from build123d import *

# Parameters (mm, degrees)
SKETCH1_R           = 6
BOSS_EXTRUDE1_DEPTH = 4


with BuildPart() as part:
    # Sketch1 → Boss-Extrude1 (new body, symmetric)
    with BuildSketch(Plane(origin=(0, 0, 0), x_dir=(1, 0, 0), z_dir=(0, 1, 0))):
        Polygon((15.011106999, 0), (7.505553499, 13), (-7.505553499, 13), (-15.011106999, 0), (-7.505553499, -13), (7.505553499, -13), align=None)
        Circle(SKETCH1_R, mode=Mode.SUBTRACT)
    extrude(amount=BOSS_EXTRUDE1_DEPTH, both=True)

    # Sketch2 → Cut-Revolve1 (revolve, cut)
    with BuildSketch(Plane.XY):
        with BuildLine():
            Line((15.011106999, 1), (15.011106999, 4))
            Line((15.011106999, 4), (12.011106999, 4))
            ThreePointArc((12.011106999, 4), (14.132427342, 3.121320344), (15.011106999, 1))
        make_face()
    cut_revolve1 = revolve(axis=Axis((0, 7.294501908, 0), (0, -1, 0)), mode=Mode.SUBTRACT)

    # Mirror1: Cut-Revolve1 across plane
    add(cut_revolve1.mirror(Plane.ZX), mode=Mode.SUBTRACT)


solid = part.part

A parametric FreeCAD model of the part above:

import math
import FreeCAD as App
import Part
import Sketcher
Q = App.Units.Quantity


def add_polygon(sketch, points):
    """Adds a closed chain of lines whose ends are joined by coincident constraints."""
    first, n = sketch.GeometryCount, len(points)
    for a, b in zip(points, points[1:] + points[:1]):
        sketch.addGeometry(Part.LineSegment(App.Vector(*a, 0), App.Vector(*b, 0)), False)
    for i in range(n):
        sketch.addConstraint(Sketcher.Constraint("Coincident", first + i, 2, first + (i + 1) % n, 1))

doc = App.newDocument("Part")
body = doc.addObject("PartDesign::Body", "Body")

# Sketch on XZ plane
sketch1 = body.newObject("Sketcher::SketchObject", "Sketch")
sketch1.AttachmentSupport = (doc.getObject("XZ_Plane"), [""])
sketch1.MapMode = "FlatFace"
add_polygon(sketch1, [(15, 0), (8, -13), (-8, -13), (-15, 0), (-8, 13), (8, 13)])  # lines 0-5
sketch1.addGeometry(Part.Circle(App.Vector(0, 0, 0), App.Vector(0, 0, 1), 6), False)  # 6
sketch1.addConstraint(Sketcher.Constraint("Horizontal", 1))
sketch1.addConstraint(Sketcher.Constraint("Horizontal", 4))
sketch1.addConstraint(Sketcher.Constraint("Coincident", 6, 3, -1, 1))
sketch1.addConstraint(Sketcher.Constraint("Symmetric", 0, 2, 3, 2, -1, 1))
sketch1.addConstraint(Sketcher.Constraint("Symmetric", 2, 2, 5, 2, -1, 1))
sketch1.addConstraint(Sketcher.Constraint("PointOnObject", 2, 2, -1))
sketch1.addConstraint(Sketcher.Constraint("Parallel", 2, 5))
sketch1.addConstraint(Sketcher.Constraint("Vertical", 1, 2, 3, 2))
sketch1.addConstraint(Sketcher.Constraint("Diameter", 6, 12.0))
sketch1.addConstraint(Sketcher.Constraint("Angle", 0, Q("-120 deg")))
sketch1.addConstraint(Sketcher.Constraint("DistanceY", 0, 2, -1, 1, 13.0))
sketch1.addConstraint(Sketcher.Constraint("DistanceX", 1, 2, 1, 1, 15.011107))
pad1 = body.newObject("PartDesign::Pad", "Pad")
pad1.Profile = sketch1
pad1.Length = 8
pad1.Midplane = True

# Sketch on XY plane
sketch2 = body.newObject("Sketcher::SketchObject", "Sketch001")
sketch2.AttachmentSupport = (doc.getObject("XY_Plane"), [""])
sketch2.MapMode = "FlatFace"
sketch2.addGeometry(Part.LineSegment(App.Vector(15, 1, 0), App.Vector(15, 4, 0)), False)
sketch2.addGeometry(Part.LineSegment(App.Vector(15, 4, 0), App.Vector(12, 4, 0)), False)
sketch2.addGeometry(Part.ArcOfCircle(Part.Circle(App.Vector(12, 1, 0), App.Vector(0, 0, 1), 3), math.radians(0), math.radians(90)), False)
sketch2.addConstraint(Sketcher.Constraint("Coincident", 0, 2, 1, 1))
sketch2.addConstraint(Sketcher.Constraint("Tangent", 1, 2, 2, 2))
sketch2.addConstraint(Sketcher.Constraint("Tangent", 2, 1, 0, 1))
sketch2.addConstraint(Sketcher.Constraint("Vertical", 0))
sketch2.addConstraint(Sketcher.Constraint("Horizontal", 1))
sketch2.addConstraint(Sketcher.Constraint("Radius", 2, 3.0))
sketch2.addConstraint(Sketcher.Constraint("DistanceY", -1, 1, 2, 3, 1.0))
sketch2.addConstraint(Sketcher.Constraint("DistanceX", -1, 1, 2, 3, 12.011107))
groove = body.newObject("PartDesign::Groove", "Groove")
groove.Profile = sketch2
groove.ReferenceAxis = (sketch2, ["V_Axis"])
groove.Angle = 360
doc.recompute()

mirrored = body.newObject("PartDesign::Mirrored", "Mirrored")
mirrored.Originals = [groove]
mirrored.MirrorPlane = (doc.getObject("XZ_Plane"), [""])
body.Tip = mirrored

doc.recompute()
